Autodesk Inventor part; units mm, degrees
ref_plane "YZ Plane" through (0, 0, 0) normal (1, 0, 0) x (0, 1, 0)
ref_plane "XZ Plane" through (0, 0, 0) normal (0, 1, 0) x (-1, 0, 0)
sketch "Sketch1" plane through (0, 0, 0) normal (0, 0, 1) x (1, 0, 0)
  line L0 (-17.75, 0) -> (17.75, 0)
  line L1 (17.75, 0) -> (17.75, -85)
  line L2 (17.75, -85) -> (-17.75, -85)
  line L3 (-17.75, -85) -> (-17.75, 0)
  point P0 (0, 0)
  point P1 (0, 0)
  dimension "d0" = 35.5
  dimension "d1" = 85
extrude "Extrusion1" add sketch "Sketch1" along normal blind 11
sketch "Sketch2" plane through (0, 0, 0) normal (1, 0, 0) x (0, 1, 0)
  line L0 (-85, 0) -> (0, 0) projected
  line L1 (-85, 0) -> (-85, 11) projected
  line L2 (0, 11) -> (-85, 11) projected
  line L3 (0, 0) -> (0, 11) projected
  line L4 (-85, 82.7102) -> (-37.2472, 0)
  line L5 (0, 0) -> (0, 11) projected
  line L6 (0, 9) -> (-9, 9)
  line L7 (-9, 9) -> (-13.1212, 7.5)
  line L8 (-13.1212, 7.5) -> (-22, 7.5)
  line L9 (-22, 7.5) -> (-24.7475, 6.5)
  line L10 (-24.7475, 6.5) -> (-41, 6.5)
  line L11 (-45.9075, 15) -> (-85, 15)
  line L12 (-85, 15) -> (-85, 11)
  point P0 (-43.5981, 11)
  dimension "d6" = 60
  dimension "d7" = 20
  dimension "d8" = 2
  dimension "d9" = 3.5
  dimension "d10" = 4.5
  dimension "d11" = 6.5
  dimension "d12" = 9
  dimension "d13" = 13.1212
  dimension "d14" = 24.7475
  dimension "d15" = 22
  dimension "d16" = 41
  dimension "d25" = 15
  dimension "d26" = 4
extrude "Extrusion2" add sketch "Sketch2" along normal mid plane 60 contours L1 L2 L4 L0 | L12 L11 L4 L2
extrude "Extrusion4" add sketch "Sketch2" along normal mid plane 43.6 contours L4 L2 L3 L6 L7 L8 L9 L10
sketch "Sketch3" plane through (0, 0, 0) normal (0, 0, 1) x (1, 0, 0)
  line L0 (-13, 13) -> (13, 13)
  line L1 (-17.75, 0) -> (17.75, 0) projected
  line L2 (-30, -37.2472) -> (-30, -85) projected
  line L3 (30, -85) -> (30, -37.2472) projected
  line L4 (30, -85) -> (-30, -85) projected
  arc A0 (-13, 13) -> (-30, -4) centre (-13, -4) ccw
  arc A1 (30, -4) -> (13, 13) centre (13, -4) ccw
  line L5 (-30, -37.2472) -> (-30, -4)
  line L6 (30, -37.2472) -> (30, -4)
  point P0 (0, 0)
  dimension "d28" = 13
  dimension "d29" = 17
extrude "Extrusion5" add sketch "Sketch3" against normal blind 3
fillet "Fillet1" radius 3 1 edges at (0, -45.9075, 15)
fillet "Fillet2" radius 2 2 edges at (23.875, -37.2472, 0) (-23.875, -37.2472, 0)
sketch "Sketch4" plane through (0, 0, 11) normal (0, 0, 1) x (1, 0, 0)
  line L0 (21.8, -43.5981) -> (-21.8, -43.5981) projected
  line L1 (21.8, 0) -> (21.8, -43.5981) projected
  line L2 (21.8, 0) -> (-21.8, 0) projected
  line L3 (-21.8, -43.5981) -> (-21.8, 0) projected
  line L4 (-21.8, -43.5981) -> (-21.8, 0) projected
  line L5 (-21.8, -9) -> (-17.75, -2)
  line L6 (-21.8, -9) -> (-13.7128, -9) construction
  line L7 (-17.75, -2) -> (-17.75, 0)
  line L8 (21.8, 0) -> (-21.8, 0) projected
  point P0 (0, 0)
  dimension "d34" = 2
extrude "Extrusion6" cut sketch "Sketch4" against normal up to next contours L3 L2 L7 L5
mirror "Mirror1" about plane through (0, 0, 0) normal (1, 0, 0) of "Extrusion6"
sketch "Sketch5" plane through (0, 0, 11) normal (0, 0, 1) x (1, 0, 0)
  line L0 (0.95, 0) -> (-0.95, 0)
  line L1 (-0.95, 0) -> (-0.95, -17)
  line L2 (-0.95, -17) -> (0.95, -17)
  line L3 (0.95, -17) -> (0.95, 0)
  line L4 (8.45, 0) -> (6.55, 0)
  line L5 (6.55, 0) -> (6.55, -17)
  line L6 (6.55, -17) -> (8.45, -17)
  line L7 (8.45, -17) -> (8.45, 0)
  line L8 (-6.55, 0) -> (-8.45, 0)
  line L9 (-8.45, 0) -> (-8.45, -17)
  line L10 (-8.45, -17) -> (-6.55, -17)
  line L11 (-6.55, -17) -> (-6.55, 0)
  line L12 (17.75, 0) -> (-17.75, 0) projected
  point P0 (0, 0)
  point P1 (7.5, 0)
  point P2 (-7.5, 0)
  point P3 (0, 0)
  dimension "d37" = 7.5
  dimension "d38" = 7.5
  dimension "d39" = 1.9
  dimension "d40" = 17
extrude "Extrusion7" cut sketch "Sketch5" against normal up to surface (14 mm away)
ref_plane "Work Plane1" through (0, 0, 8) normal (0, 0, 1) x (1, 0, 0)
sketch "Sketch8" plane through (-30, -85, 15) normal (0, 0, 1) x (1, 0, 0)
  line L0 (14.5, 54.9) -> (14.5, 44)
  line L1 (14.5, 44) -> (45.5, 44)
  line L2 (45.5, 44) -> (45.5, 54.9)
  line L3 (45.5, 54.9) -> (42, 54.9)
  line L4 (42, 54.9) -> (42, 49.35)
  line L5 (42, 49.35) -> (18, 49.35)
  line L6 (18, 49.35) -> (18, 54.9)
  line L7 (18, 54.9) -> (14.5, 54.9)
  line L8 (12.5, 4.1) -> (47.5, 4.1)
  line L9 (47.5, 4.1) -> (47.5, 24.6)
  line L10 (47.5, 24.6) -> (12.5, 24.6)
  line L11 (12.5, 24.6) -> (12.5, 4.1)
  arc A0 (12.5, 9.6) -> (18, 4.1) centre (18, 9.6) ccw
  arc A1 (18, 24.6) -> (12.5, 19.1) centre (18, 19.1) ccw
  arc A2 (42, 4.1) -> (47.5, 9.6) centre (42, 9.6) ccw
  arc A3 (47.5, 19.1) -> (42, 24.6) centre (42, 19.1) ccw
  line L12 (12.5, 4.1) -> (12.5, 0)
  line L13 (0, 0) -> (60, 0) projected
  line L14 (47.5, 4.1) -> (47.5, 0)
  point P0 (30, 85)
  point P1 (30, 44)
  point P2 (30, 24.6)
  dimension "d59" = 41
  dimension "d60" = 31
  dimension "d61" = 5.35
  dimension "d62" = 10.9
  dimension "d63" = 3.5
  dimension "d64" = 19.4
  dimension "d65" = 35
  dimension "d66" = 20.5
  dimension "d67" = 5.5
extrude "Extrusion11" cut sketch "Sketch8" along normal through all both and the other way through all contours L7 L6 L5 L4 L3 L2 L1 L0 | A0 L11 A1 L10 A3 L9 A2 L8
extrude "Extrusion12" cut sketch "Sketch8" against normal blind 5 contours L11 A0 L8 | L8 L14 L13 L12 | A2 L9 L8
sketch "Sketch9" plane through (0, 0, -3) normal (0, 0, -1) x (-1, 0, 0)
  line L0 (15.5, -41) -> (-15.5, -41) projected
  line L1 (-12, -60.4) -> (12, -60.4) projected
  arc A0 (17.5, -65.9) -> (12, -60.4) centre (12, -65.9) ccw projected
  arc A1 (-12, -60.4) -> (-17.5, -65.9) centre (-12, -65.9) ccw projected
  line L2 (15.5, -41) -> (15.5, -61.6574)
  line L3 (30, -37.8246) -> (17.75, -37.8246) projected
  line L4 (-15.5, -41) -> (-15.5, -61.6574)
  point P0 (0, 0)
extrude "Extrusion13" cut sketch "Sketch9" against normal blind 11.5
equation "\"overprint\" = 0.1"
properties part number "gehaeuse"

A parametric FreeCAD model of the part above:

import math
import FreeCAD as App
import Part
import Sketcher

V = App.Vector
Q = App.Units.Quantity


def edges_at(feature, points):
    """Names of the edges that pass closest to the given points."""
    edges = feature.Shape.Edges
    near = lambda p: min(range(len(edges)), key=lambda i: edges[i].distToShape(Part.Vertex(*p))[0])
    return sorted({f"Edge{near(p) + 1}" for p in points})


def add_polygon(sketch, points):
    """Adds a closed chain of lines whose ends are joined by coincident constraints."""
    first, n = sketch.GeometryCount, len(points)
    for a, b in zip(points, points[1:] + points[:1]):
        sketch.addGeometry(Part.LineSegment(App.Vector(*a, 0), App.Vector(*b, 0)), False)
    for i in range(n):
        sketch.addConstraint(Sketcher.Constraint("Coincident", first + i, 2, first + (i + 1) % n, 1))

doc = App.newDocument("Part")
body = doc.addObject("PartDesign::Body", "Body")

# Sketch on XY plane
sketch1 = doc.addObject("Sketcher::SketchObject", "Sketch")
body.addObject(sketch1)
sketch1.AttachmentSupport = (doc.XY_Plane, [""])
sketch1.MapMode = "FlatFace"
add_polygon(sketch1, [(18, 0), (-18, 0), (-18, -85), (18, -85)])  # lines 0-3
sketch1.addConstraint(Sketcher.Constraint("Horizontal", 0))
sketch1.addConstraint(Sketcher.Constraint("Vertical", 1))
sketch1.addConstraint(Sketcher.Constraint("Horizontal", 2))
sketch1.addConstraint(Sketcher.Constraint("Vertical", 3))
sketch1.addConstraint(Sketcher.Constraint("Symmetric", 0, 2, 3, 2, -1, 1))
sketch1.addConstraint(Sketcher.Constraint("DistanceY", 1, 2, 1, 1, Q("85 mm")))
sketch1.addConstraint(Sketcher.Constraint("DistanceX", 0, 2, 0, 1, Q("35.5 mm")))
pad1 = doc.addObject("PartDesign::Pad", "Pad")
body.addObject(pad1)
pad1.Profile = sketch1
pad1.Length = 11

# Sketch on YZ plane
sketch2 = doc.addObject("Sketcher::SketchObject", "Sketch001")
body.addObject(sketch2)
sketch2.AttachmentSupport = (doc.YZ_Plane, [""])
sketch2.MapMode = "FlatFace"
add_polygon(sketch2, [(-85, 0), (-37, 0), (-46, 15), (-85, 15)])  # lines 0-3
sketch2.addConstraint(Sketcher.Constraint("Horizontal", 0))
sketch2.addConstraint(Sketcher.Constraint("Horizontal", 2))
sketch2.addConstraint(Sketcher.Constraint("Vertical", 3))
sketch2.addConstraint(Sketcher.Constraint("PointOnObject", 0, 2, -1))
sketch2.addConstraint(Sketcher.Constraint("DistanceY", 3, 2, 3, 1, Q("15 mm")))
sketch2.addConstraint(Sketcher.Constraint("Angle", 1, Q("120.0001 deg")))
sketch2.addConstraint(Sketcher.Constraint("DistanceX", 2, 2, -1, 1, Q("85 mm")))
sketch2.addConstraint(Sketcher.Constraint("DistanceX", 0, 1, 0, 2, Q("47.7528 mm")))
pad2 = doc.addObject("PartDesign::Pad", "Pad001")
body.addObject(pad2)
pad2.Profile = sketch2
pad2.Length = 60
pad2.Midplane = True

# Sketch on YZ plane
sketch3 = doc.addObject("Sketcher::SketchObject", "Sketch002")
body.addObject(sketch3)
sketch3.AttachmentSupport = (doc.YZ_Plane, [""])
sketch3.MapMode = "FlatFace"
add_polygon(sketch3, [(-43.6, 11), (-41, 6.5), (-24.7, 6.5), (-22, 7.5), (-13.1, 7.5), (-9, 9), (0, 9), (0, 11)])  # lines 0-7
sketch3.addConstraint(Sketcher.Constraint("Horizontal", 1))
sketch3.addConstraint(Sketcher.Constraint("Horizontal", 3))
sketch3.addConstraint(Sketcher.Constraint("Horizontal", 5))
sketch3.addConstraint(Sketcher.Constraint("Vertical", 6))
sketch3.addConstraint(Sketcher.Constraint("Horizontal", 7))
sketch3.addConstraint(Sketcher.Constraint("PointOnObject", 5, 2, -2))
sketch3.addConstraint(Sketcher.Constraint("Parallel", 2, 4))
sketch3.addConstraint(Sketcher.Constraint("DistanceX", 5, 1, 5, 2, Q("9 mm")))
sketch3.addConstraint(Sketcher.Constraint("DistanceY", 6, 1, 6, 2, Q("2 mm")))
sketch3.addConstraint(Sketcher.Constraint("Angle", 0, Q("-60 deg")))
sketch3.addConstraint(Sketcher.Constraint("Angle", 2, Q("19.9998 deg")))
sketch3.addConstraint(Sketcher.Constraint("DistanceX", 0, 2, -1, 1, Q("41 mm")))
sketch3.addConstraint(Sketcher.Constraint("DistanceX", 2, 2, -1, 1, Q("22 mm")))
sketch3.addConstraint(Sketcher.Constraint("DistanceY", -1, 1, 4, 2, Q("9 mm")))
sketch3.addConstraint(Sketcher.Constraint("DistanceY", -1, 1, 0, 2, Q("6.5 mm")))
sketch3.addConstraint(Sketcher.Constraint("DistanceY", 3, 2, 6, 2, Q("3.5 mm")))
pad3 = doc.addObject("PartDesign::Pad", "Pad002")
body.addObject(pad3)
pad3.Profile = sketch3
pad3.Length = 43.6
pad3.Midplane = True

# Sketch on XY plane
sketch4 = doc.addObject("Sketcher::SketchObject", "Sketch003")
body.addObject(sketch4)
sketch4.AttachmentSupport = (doc.XY_Plane, [""])
sketch4.MapMode = "FlatFace"
sketch4.addGeometry(Part.LineSegment(V(13, 13, 0), V(-13, 13, 0)), False)
sketch4.addGeometry(Part.ArcOfCircle(Part.Circle(V(-13, -4, 0), V(0, 0, 1), 17), math.radians(90), math.radians(180)), False)
sketch4.addGeometry(Part.LineSegment(V(-30, -4, 0), V(-30, -85, 0)), False)
sketch4.addGeometry(Part.LineSegment(V(-30, -85, 0), V(30, -85, 0)), False)
sketch4.addGeometry(Part.LineSegment(V(30, -85, 0), V(30, -4, 0)), False)
sketch4.addGeometry(Part.ArcOfCircle(Part.Circle(V(13, -4, 0), V(0, 0, 1), 17), math.radians(0), math.radians(90)), False)
sketch4.addConstraint(Sketcher.Constraint("Tangent", 0, 2, 1, 1))
sketch4.addConstraint(Sketcher.Constraint("Tangent", 1, 2, 2, 1))
sketch4.addConstraint(Sketcher.Constraint("Coincident", 2, 2, 3, 1))
sketch4.addConstraint(Sketcher.Constraint("Coincident", 3, 2, 4, 1))
sketch4.addConstraint(Sketcher.Constraint("Tangent", 4, 2, 5, 1))
sketch4.addConstraint(Sketcher.Constraint("Tangent", 5, 2, 0, 1))
sketch4.addConstraint(Sketcher.Constraint("Horizontal", 0))
sketch4.addConstraint(Sketcher.Constraint("Vertical", 2))
sketch4.addConstraint(Sketcher.Constraint("Horizontal", 3))
sketch4.addConstraint(Sketcher.Constraint("Vertical", 4))
sketch4.addConstraint(Sketcher.Constraint("Equal", 1, 5))
sketch4.addConstraint(Sketcher.Constraint("Radius", 1, Q("17 mm")))
sketch4.addConstraint(Sketcher.Constraint("DistanceX", 1, 3, -1, 1, Q("13 mm")))
sketch4.addConstraint(Sketcher.Constraint("DistanceX", -1, 1, 5, 3, Q("13 mm")))
sketch4.addConstraint(Sketcher.Constraint("DistanceY", -1, 1, 0, 2, Q("13 mm")))
sketch4.addConstraint(Sketcher.Constraint("DistanceY", 2, 2, 2, 1, Q("81 mm")))
pad4 = doc.addObject("PartDesign::Pad", "Pad003")
body.addObject(pad4)
pad4.Profile = sketch4
pad4.Length = 3
pad4.Reversed = True
doc.recompute()

fillet = doc.addObject("PartDesign::Fillet", "Fillet")
body.addObject(fillet)
fillet.Base = (pad4, edges_at(pad4, [(0, -45.907, 15)]))
fillet.Radius = 3
doc.recompute()

fillet2 = doc.addObject("PartDesign::Fillet", "Fillet001")
body.addObject(fillet2)
fillet2.Base = (fillet, edges_at(fillet, [(23.875, -37.247, 0), (-23.875, -37.247, 0)]))
fillet2.Radius = 2

# Sketch on XY plane
sketch5 = doc.addObject("Sketcher::SketchObject", "Sketch004")
body.addObject(sketch5)
sketch5.AttachmentSupport = (doc.XY_Plane, [""])
sketch5.MapMode = "FlatFace"
sketch5.AttachmentOffset = App.Placement(V(0, 0, 11), App.Rotation())
add_polygon(sketch5, [(-21.8, 0), (-21.8, -9), (-17.8, -2), (-17.8, 0)])  # lines 0-3
sketch5.addConstraint(Sketcher.Constraint("Vertical", 0))
sketch5.addConstraint(Sketcher.Constraint("Vertical", 2))
sketch5.addConstraint(Sketcher.Constraint("Horizontal", 3))
sketch5.addConstraint(Sketcher.Constraint("PointOnObject", 2, 2, -1))
sketch5.addConstraint(Sketcher.Constraint("DistanceY", 2, 1, 2, 2, Q("2 mm")))
sketch5.addConstraint(Sketcher.Constraint("DistanceY", 0, 2, 0, 1, Q("9 mm")))
sketch5.addConstraint(Sketcher.Constraint("DistanceX", 3, 2, 3, 1, Q("4.05 mm")))
sketch5.addConstraint(Sketcher.Constraint("DistanceX", 0, 2, -1, 1, Q("21.8 mm")))
pocket1 = doc.addObject("PartDesign::Pocket", "Pocket")
body.addObject(pocket1)
pocket1.Profile = sketch5
pocket1.Type = "UpToFirst"
doc.recompute()

mirrored = doc.addObject("PartDesign::Mirrored", "Mirrored")
body.addObject(mirrored)
mirrored.Originals = [pocket1]
mirrored.MirrorPlane = (doc.YZ_Plane, [""])
body.Tip = mirrored

# Sketch on XY plane
sketch6 = doc.addObject("Sketcher::SketchObject", "Sketch005")
body.addObject(sketch6)
sketch6.AttachmentSupport = (doc.XY_Plane, [""])
sketch6.MapMode = "FlatFace"
sketch6.AttachmentOffset = App.Placement(V(0, 0, 11), App.Rotation())
add_polygon(sketch6, [(0.9, -17), (0.9, 0), (-0.9, 0), (-0.9, -17)])  # lines 0-3
add_polygon(sketch6, [(-6.5, -17), (-6.5, 0), (-8.4, 0), (-8.4, -17)])  # lines 4-7
add_polygon(sketch6, [(8.4, 0), (6.5, 0), (6.5, -17), (8.4, -17)])  # lines 8-11
sketch6.addConstraint(Sketcher.Constraint("Vertical", 0))
sketch6.addConstraint(Sketcher.Constraint("Horizontal", 1))
sketch6.addConstraint(Sketcher.Constraint("Vertical", 2))
sketch6.addConstraint(Sketcher.Constraint("Horizontal", 3))
sketch6.addConstraint(Sketcher.Constraint("Vertical", 4))
sketch6.addConstraint(Sketcher.Constraint("Horizontal", 5))
sketch6.addConstraint(Sketcher.Constraint("Vertical", 6))
sketch6.addConstraint(Sketcher.Constraint("Horizontal", 7))
sketch6.addConstraint(Sketcher.Constraint("Horizontal", 8))
sketch6.addConstraint(Sketcher.Constraint("Vertical", 9))
sketch6.addConstraint(Sketcher.Constraint("Horizontal", 10))
sketch6.addConstraint(Sketcher.Constraint("Vertical", 11))
sketch6.addConstraint(Sketcher.Constraint("Symmetric", 0, 2, 1, 2, -1, 1))
sketch6.addConstraint(Sketcher.Constraint("Symmetric", 4, 2, 8, 2, -1, 1))
sketch6.addConstraint(Sketcher.Constraint("Symmetric", 6, 2, 10, 2, -2))
sketch6.addConstraint(Sketcher.Constraint("PointOnObject", 4, 2, -1))
sketch6.addConstraint(Sketcher.Constraint("Horizontal", 3, 2, 6, 2))
sketch6.addConstraint(Sketcher.Constraint("Equal", 3, 5))
sketch6.addConstraint(Sketcher.Constraint("DistanceY", 0, 1, 0, 2, Q("17 mm")))
sketch6.addConstraint(Sketcher.Constraint("DistanceX", 1, 2, 1, 1, Q("1.9 mm")))
sketch6.addConstraint(Sketcher.Constraint("DistanceX", 4, 2, 0, 2, Q("7.5 mm")))
pocket2 = doc.addObject("PartDesign::Pocket", "Pocket001")
body.addObject(pocket2)
pocket2.Profile = sketch6
pocket2.Length = 14

# Sketch on XY plane
sketch7 = doc.addObject("Sketcher::SketchObject", "Sketch006")
body.addObject(sketch7)
sketch7.AttachmentSupport = (doc.XY_Plane, [""])
sketch7.MapMode = "FlatFace"
sketch7.AttachmentOffset = App.Placement(V(0, 0, 15), App.Rotation())
add_polygon(sketch7, [(-12, -30.1), (-15.5, -30.1), (-15.5, -41), (15.5, -41), (15.5, -30.1), (12, -30.1), (12, -35.6), (-12, -35.6)])  # lines 0-7
sketch7.addGeometry(Part.ArcOfCircle(Part.Circle(V(-12, -75.4, 0), V(0, 0, 1), 5.5), math.radians(180), math.radians(270)), False)  # 8
sketch7.addGeometry(Part.LineSegment(V(-12, -80.9, 0), V(12, -80.9, 0)), False)  # 9
sketch7.addGeometry(Part.ArcOfCircle(Part.Circle(V(12, -75.4, 0), V(0, 0, 1), 5.5), math.radians(-90), math.radians(0)), False)  # 10
sketch7.addGeometry(Part.LineSegment(V(17.5, -75.4, 0), V(17.5, -65.9, 0)), False)  # 11
sketch7.addGeometry(Part.ArcOfCircle(Part.Circle(V(12, -65.9, 0), V(0, 0, 1), 5.5), math.radians(0), math.radians(90)), False)  # 12
sketch7.addGeometry(Part.LineSegment(V(12, -60.4, 0), V(-12, -60.4, 0)), False)  # 13
sketch7.addGeometry(Part.ArcOfCircle(Part.Circle(V(-12, -65.9, 0), V(0, 0, 1), 5.5), math.radians(90), math.radians(180)), False)  # 14
sketch7.addGeometry(Part.LineSegment(V(-17.5, -65.9, 0), V(-17.5, -75.4, 0)), False)  # 15
sketch7.addConstraint(Sketcher.Constraint("Tangent", 8, 2, 9, 1))
sketch7.addConstraint(Sketcher.Constraint("Tangent", 9, 2, 10, 1))
sketch7.addConstraint(Sketcher.Constraint("Tangent", 10, 2, 11, 1))
sketch7.addConstraint(Sketcher.Constraint("Tangent", 11, 2, 12, 1))
sketch7.addConstraint(Sketcher.Constraint("Tangent", 12, 2, 13, 1))
sketch7.addConstraint(Sketcher.Constraint("Tangent", 13, 2, 14, 1))
sketch7.addConstraint(Sketcher.Constraint("Tangent", 14, 2, 15, 1))
sketch7.addConstraint(Sketcher.Constraint("Tangent", 15, 2, 8, 1))
sketch7.addConstraint(Sketcher.Constraint("Horizontal", 0))
sketch7.addConstraint(Sketcher.Constraint("Vertical", 1))
sketch7.addConstraint(Sketcher.Constraint("Horizontal", 2))
sketch7.addConstraint(Sketcher.Constraint("Vertical", 3))
sketch7.addConstraint(Sketcher.Constraint("Horizontal", 4))
sketch7.addConstraint(Sketcher.Constraint("Vertical", 5))
sketch7.addConstraint(Sketcher.Constraint("Horizontal", 6))
sketch7.addConstraint(Sketcher.Constraint("Vertical", 7))
sketch7.addConstraint(Sketcher.Constraint("Horizontal", 9))
sketch7.addConstraint(Sketcher.Constraint("Vertical", 11))
sketch7.addConstraint(Sketcher.Constraint("Horizontal", 13))
sketch7.addConstraint(Sketcher.Constraint("Vertical", 15))
sketch7.addConstraint(Sketcher.Constraint("Equal", 8, 10))
sketch7.addConstraint(Sketcher.Constraint("Equal", 10, 12))
sketch7.addConstraint(Sketcher.Constraint("Equal", 12, 14))
sketch7.addConstraint(Sketcher.Constraint("Symmetric", 0, 2, 3, 2, -2))
sketch7.addConstraint(Sketcher.Constraint("Vertical", 12, 3, 4, 2))
sketch7.addConstraint(Sketcher.Constraint("Vertical", 14, 3, 6, 2))
sketch7.addConstraint(Sketcher.Constraint("Equal", 0, 4))
sketch7.addConstraint(Sketcher.Constraint("Radius", 8, Q("5.5 mm")))
sketch7.addConstraint(Sketcher.Constraint("DistanceX", 2, 1, 2, 2, Q("31 mm")))
sketch7.addConstraint(Sketcher.Constraint("DistanceX", 0, 2, 0, 1, Q("3.5 mm")))
sketch7.addConstraint(Sketcher.Constraint("DistanceY", 1, 2, 1, 1, Q("10.9 mm")))
sketch7.addConstraint(Sketcher.Constraint("DistanceY", 1, 2, -1, 1, Q("41 mm")))
sketch7.addConstraint(Sketcher.Constraint("DistanceY", 12, 2, 2, 2, Q("19.4 mm")))
sketch7.addConstraint(Sketcher.Constraint("DistanceY", 8, 2, 13, 2, Q("20.5 mm")))
sketch7.addConstraint(Sketcher.Constraint("DistanceY", 2, 2, 5, 2, Q("5.35 mm")))
pocket3 = doc.addObject("PartDesign::Pocket", "Pocket002")
body.addObject(pocket3)
pocket3.Profile = sketch7
pocket3.Type = "ThroughAll"
pocket3.Midplane = True

# Sketch on XY plane
sketch8 = doc.addObject("Sketcher::SketchObject", "Sketch007")
body.addObject(sketch8)
sketch8.AttachmentSupport = (doc.XY_Plane, [""])
sketch8.MapMode = "FlatFace"
sketch8.AttachmentOffset = App.Placement(V(0, 0, 15), App.Rotation())
sketch8.addGeometry(Part.LineSegment(V(-18, -75, 0), V(-18, -85, 0)), False)
sketch8.addGeometry(Part.LineSegment(V(-18, -85, 0), V(18, -85, 0)), False)
sketch8.addGeometry(Part.LineSegment(V(18, -85, 0), V(18, -75, 0)), False)
sketch8.addGeometry(Part.ArcOfCircle(Part.Circle(V(12, -75, 0), V(0, 0, 1), 6), math.radians(-90), math.radians(0)), False)
sketch8.addGeometry(Part.LineSegment(V(12, -81, 0), V(-12, -81, 0)), False)
sketch8.addGeometry(Part.ArcOfCircle(Part.Circle(V(-12, -75, 0), V(0, 0, 1), 6), math.radians(180), math.radians(270)), False)
sketch8.addConstraint(Sketcher.Constraint("Coincident", 0, 2, 1, 1))
sketch8.addConstraint(Sketcher.Constraint("Coincident", 1, 2, 2, 1))
sketch8.addConstraint(Sketcher.Constraint("Tangent", 2, 2, 3, 2))
sketch8.addConstraint(Sketcher.Constraint("Tangent", 3, 1, 4, 1))
sketch8.addConstraint(Sketcher.Constraint("Tangent", 4, 2, 5, 2))
sketch8.addConstraint(Sketcher.Constraint("Tangent", 5, 1, 0, 1))
sketch8.addConstraint(Sketcher.Constraint("Vertical", 0))
sketch8.addConstraint(Sketcher.Constraint("Horizontal", 1))
sketch8.addConstraint(Sketcher.Constraint("Vertical", 2))
sketch8.addConstraint(Sketcher.Constraint("Horizontal", 4))
sketch8.addConstraint(Sketcher.Constraint("Equal", 3, 5))
sketch8.addConstraint(Sketcher.Constraint("Radius", 3, Q("5.5 mm")))
sketch8.addConstraint(Sketcher.Constraint("DistanceX", 1, 1, 1, 2, Q("35 mm")))
sketch8.addConstraint(Sketcher.Constraint("DistanceY", 0, 2, 0, 1, Q("9.6 mm")))
sketch8.addConstraint(Sketcher.Constraint("DistanceX", -1, 1, 3, 3, Q("12 mm")))
sketch8.addConstraint(Sketcher.Constraint("DistanceY", 0, 2, -1, 1, Q("85 mm")))
pocket4 = doc.addObject("PartDesign::Pocket", "Pocket003")
body.addObject(pocket4)
pocket4.Profile = sketch8
pocket4.Length = 5

# Sketch on XY plane
sketch9 = doc.addObject("Sketcher::SketchObject", "Sketch008")
body.addObject(sketch9)
sketch9.AttachmentSupport = (doc.XY_Plane, [""])
sketch9.MapMode = "FlatFace"
sketch9.AttachmentOffset = App.Placement(V(0, 0, -3), App.Rotation())
sketch9.addGeometry(Part.LineSegment(V(-15.5, -61.7, 0), V(-15.5, -41, 0)), False)
sketch9.addGeometry(Part.LineSegment(V(-15.5, -41, 0), V(15.5, -41, 0)), False)
sketch9.addGeometry(Part.LineSegment(V(15.5, -41, 0), V(15.5, -61.7, 0)), False)
sketch9.addGeometry(Part.ArcOfCircle(Part.Circle(V(12, -65.9, 0), V(0, 0, 1), 5.5), math.radians(50), math.radians(90)), False)
sketch9.addGeometry(Part.LineSegment(V(12, -60.4, 0), V(-12, -60.4, 0)), False)
sketch9.addGeometry(Part.ArcOfCircle(Part.Circle(V(-12, -65.9, 0), V(0, 0, 1), 5.5), math.radians(90), math.radians(130)), False)
sketch9.addConstraint(Sketcher.Constraint("Coincident", 0, 2, 1, 1))
sketch9.addConstraint(Sketcher.Constraint("Coincident", 1, 2, 2, 1))
sketch9.addConstraint(Sketcher.Constraint("Coincident", 2, 2, 3, 1))
sketch9.addConstraint(Sketcher.Constraint("Tangent", 3, 2, 4, 1))
sketch9.addConstraint(Sketcher.Constraint("Tangent", 4, 2, 5, 1))
sketch9.addConstraint(Sketcher.Constraint("Coincident", 5, 2, 0, 1))
sketch9.addConstraint(Sketcher.Constraint("Vertical", 0))
sketch9.addConstraint(Sketcher.Constraint("Horizontal", 1))
sketch9.addConstraint(Sketcher.Constraint("Vertical", 2))
sketch9.addConstraint(Sketcher.Constraint("Horizontal", 4))
sketch9.addConstraint(Sketcher.Constraint("Equal", 3, 5))
sketch9.addConstraint(Sketcher.Constraint("Symmetric", 2, 2, 5, 2, -2))
sketch9.addConstraint(Sketcher.Constraint("Radius", 3, Q("5.5 mm")))
sketch9.addConstraint(Sketcher.Constraint("DistanceX", 1, 1, 1, 2, Q("31 mm")))
sketch9.addConstraint(Sketcher.Constraint("DistanceX", 4, 2, 4, 1, Q("24 mm")))
sketch9.addConstraint(Sketcher.Constraint("DistanceY", 0, 2, -1, 1, Q("41 mm")))
sketch9.addConstraint(Sketcher.Constraint("DistanceY", 3, 3, -1, 1, Q("65.9 mm")))
pocket5 = doc.addObject("PartDesign::Pocket", "Pocket004")
body.addObject(pocket5)
pocket5.Profile = sketch9
pocket5.Length = 11.5
pocket5.Reversed = True

doc.recompute()
